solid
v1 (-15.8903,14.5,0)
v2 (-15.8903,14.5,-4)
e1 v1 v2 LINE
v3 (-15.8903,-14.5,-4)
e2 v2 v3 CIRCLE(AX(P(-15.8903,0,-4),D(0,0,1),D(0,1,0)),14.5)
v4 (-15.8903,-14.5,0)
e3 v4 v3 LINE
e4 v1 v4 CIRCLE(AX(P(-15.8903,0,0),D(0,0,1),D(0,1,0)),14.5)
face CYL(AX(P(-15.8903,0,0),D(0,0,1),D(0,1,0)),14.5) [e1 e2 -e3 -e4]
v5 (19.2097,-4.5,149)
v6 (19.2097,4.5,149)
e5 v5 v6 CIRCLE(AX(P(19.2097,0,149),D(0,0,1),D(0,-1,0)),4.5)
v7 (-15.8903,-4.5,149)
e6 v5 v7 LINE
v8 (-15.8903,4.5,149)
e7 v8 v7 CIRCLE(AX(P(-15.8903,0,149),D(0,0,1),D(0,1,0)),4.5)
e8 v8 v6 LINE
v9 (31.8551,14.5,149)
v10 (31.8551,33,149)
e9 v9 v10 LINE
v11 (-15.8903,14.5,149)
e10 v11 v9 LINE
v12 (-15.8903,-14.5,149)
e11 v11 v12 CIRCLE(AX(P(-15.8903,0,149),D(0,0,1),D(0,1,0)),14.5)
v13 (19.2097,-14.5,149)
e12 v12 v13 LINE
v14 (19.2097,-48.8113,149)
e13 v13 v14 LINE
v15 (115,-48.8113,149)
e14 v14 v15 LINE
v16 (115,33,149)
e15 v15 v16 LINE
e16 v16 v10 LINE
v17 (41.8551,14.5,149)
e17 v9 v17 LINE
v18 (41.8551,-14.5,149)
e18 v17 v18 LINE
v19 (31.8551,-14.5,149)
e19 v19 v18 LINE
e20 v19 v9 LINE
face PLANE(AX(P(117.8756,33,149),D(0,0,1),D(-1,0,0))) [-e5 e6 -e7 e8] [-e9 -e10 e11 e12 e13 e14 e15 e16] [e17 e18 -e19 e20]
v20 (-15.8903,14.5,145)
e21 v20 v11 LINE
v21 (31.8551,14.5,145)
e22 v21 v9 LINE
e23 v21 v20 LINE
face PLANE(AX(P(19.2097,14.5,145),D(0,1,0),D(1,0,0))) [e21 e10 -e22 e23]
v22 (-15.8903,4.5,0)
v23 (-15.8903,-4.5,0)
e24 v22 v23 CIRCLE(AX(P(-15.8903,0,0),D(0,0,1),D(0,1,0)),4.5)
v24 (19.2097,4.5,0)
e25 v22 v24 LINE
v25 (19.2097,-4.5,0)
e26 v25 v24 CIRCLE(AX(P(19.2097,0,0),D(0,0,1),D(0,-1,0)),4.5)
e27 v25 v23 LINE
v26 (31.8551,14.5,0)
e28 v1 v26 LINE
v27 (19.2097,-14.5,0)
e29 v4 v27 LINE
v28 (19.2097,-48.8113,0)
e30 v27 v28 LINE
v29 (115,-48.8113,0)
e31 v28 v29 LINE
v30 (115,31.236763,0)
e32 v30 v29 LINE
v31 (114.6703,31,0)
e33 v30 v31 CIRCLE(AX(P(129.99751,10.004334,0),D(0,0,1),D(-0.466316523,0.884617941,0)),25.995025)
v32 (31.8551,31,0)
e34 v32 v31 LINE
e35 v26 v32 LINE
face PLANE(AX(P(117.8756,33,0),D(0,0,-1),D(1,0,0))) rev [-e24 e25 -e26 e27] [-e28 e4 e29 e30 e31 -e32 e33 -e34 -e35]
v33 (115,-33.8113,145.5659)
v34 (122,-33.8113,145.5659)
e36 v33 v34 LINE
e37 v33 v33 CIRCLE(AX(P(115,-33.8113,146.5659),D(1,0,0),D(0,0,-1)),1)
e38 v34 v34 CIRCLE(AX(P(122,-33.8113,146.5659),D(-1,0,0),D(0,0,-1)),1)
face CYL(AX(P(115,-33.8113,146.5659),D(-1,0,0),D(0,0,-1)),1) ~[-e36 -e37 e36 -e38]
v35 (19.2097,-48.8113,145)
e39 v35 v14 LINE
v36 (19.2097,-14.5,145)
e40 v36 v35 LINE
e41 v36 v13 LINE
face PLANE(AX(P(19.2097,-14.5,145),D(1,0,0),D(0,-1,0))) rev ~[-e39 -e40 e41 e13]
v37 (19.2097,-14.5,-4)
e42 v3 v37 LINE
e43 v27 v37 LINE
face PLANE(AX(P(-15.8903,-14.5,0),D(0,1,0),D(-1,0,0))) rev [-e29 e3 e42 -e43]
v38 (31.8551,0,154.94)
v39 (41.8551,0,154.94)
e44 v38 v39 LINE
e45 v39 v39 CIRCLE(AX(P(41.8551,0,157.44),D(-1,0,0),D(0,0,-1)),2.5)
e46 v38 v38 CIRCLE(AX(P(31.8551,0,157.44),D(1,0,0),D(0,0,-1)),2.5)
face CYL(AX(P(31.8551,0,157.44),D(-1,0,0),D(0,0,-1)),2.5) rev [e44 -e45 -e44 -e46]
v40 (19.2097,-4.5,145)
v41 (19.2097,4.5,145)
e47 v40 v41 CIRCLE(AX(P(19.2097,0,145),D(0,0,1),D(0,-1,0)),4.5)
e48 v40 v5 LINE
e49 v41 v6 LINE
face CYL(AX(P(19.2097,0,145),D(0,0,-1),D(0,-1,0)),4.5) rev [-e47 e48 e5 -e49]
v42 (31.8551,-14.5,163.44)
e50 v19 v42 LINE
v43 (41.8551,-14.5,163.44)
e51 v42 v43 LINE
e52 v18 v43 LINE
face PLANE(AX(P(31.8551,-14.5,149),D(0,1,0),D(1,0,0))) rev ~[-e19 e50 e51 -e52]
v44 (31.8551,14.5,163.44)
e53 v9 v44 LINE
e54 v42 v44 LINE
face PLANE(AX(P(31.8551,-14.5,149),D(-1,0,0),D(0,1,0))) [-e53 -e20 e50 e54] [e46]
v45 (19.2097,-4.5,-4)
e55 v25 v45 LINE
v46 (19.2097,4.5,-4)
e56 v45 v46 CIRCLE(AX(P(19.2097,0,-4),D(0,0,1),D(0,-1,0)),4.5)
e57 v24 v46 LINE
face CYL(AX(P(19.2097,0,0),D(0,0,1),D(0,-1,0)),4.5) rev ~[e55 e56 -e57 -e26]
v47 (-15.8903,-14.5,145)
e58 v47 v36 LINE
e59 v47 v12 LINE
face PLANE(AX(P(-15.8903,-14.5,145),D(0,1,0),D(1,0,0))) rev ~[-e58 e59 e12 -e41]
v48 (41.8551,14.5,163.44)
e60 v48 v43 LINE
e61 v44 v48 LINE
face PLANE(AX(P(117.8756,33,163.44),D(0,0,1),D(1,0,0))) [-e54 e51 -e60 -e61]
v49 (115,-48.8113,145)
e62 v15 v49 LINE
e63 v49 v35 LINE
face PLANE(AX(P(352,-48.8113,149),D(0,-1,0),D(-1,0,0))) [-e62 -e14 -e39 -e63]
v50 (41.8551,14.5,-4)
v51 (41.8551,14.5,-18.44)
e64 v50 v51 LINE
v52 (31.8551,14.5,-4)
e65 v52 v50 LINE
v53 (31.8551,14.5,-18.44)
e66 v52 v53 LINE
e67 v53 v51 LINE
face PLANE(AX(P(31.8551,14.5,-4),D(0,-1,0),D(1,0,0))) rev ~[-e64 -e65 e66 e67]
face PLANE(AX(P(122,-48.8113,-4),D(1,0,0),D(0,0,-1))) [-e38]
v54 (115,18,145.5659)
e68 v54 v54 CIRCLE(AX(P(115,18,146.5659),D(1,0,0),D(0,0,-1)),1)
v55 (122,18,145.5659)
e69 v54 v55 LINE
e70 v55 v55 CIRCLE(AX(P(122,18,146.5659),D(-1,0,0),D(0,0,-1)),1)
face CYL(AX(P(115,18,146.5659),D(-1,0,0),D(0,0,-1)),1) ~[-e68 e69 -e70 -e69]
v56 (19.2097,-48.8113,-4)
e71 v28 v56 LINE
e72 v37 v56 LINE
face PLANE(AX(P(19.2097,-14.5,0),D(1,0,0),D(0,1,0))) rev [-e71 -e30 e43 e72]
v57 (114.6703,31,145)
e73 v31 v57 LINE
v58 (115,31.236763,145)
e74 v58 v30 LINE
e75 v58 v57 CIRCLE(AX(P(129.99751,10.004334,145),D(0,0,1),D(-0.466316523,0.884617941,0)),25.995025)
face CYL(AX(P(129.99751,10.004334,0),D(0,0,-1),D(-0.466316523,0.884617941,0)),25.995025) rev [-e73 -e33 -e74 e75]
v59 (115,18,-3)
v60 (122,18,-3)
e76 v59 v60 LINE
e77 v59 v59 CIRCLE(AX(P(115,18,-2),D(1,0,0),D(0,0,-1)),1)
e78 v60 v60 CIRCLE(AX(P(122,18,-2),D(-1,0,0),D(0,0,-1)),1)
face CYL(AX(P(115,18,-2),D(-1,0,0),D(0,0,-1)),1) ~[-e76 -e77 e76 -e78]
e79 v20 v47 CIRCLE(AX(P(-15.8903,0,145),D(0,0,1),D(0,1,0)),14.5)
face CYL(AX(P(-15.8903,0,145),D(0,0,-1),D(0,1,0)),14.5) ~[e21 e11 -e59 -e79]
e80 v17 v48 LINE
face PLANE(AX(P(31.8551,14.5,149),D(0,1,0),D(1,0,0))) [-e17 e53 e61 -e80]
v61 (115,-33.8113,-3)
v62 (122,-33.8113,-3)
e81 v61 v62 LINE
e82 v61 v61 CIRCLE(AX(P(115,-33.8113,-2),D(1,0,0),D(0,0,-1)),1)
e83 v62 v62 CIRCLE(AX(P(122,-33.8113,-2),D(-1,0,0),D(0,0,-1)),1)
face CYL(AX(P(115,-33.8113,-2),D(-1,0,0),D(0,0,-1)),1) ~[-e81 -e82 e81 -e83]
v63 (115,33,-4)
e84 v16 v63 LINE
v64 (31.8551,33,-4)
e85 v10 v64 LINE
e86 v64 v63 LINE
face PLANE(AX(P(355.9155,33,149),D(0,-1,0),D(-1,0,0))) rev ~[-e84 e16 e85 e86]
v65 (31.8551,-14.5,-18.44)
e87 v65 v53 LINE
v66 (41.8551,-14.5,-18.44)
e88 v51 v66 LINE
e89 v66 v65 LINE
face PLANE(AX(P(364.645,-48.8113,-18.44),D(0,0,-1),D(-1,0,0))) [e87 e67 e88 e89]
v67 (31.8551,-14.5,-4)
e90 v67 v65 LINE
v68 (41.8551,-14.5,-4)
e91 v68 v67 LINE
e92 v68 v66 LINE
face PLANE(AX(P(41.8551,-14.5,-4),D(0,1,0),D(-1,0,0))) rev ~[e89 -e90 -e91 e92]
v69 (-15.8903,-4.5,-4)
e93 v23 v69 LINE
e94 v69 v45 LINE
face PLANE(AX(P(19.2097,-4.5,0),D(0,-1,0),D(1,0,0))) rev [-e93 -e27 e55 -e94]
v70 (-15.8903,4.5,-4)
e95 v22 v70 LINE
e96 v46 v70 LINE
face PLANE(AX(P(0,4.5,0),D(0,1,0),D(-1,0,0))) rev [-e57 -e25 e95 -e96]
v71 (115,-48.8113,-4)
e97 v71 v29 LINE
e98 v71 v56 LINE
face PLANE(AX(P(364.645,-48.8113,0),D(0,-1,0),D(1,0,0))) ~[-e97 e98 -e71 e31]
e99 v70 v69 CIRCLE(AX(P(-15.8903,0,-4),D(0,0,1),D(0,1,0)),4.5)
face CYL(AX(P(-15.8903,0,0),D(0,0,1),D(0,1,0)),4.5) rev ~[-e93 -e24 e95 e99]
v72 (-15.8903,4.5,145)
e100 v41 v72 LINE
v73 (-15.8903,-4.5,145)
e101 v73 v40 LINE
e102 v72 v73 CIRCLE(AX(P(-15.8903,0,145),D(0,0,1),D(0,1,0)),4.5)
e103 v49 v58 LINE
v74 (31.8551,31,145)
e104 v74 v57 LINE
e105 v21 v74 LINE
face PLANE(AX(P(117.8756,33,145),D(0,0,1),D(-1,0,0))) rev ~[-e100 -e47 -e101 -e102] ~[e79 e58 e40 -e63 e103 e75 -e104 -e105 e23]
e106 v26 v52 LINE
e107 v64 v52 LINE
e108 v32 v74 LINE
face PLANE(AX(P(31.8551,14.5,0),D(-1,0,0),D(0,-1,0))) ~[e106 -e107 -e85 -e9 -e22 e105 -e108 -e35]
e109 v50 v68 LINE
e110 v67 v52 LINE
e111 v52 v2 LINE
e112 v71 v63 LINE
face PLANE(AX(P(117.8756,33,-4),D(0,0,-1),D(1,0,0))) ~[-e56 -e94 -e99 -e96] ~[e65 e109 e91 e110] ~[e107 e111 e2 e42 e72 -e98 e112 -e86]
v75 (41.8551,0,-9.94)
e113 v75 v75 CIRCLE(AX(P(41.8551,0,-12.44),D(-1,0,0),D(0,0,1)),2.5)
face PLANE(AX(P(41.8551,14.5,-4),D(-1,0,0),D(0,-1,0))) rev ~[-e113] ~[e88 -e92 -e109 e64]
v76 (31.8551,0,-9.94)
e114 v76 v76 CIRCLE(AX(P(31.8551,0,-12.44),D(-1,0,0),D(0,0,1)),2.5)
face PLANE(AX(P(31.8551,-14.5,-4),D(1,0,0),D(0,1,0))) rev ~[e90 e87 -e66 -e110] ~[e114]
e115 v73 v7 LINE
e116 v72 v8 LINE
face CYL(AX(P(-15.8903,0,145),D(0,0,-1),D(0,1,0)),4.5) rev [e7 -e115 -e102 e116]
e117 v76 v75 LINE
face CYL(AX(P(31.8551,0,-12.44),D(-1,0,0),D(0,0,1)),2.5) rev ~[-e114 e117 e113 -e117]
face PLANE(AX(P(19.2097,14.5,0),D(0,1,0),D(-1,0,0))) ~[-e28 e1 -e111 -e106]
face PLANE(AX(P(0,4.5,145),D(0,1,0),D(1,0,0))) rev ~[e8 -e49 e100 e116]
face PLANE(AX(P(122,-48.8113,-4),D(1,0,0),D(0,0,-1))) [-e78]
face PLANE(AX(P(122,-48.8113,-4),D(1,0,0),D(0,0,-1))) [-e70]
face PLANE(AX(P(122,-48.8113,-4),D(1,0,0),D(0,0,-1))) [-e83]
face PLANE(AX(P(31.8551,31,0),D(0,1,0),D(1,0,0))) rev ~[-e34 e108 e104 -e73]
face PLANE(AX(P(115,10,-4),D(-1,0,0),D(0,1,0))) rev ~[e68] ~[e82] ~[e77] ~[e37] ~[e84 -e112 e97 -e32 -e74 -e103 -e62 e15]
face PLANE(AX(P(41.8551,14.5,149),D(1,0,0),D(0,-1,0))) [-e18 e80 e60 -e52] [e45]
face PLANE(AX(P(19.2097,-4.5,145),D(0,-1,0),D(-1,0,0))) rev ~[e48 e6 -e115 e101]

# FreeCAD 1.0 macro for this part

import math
import FreeCAD as App
import Part
import Sketcher
Q = App.Units.Quantity


def add_polygon(sketch, points):
    """Adds a closed chain of lines whose ends are joined by coincident constraints."""
    first, n = sketch.GeometryCount, len(points)
    for a, b in zip(points, points[1:] + points[:1]):
        sketch.addGeometry(Part.LineSegment(App.Vector(*a, 0), App.Vector(*b, 0)), False)
    for i in range(n):
        sketch.addConstraint(Sketcher.Constraint("Coincident", first + i, 2, first + (i + 1) % n, 1))

doc = App.newDocument("Part")
body = doc.addObject("PartDesign::Body", "Body")
body.AllowCompound = True

sketch1 = body.newObject("Sketcher::SketchObject", "Sketch")
sketch1.AttachmentSupport = (doc.getObject("XY_Plane"), [""])
sketch1.MapMode = "FlatFace"
sketch1.addGeometry(Part.ArcOfCircle(Part.Circle(App.Vector(129.99751, 10.004334, 0), App.Vector(0, 0, 1), 25.995025), math.radians(117.795458), math.radians(126.13011)), False)
sketch1.addGeometry(Part.LineSegment(App.Vector(117.8756, 33, 0), App.Vector(31.8551, 33, 0)), False)
sketch1.addGeometry(Part.LineSegment(App.Vector(31.8551, 33, 0), App.Vector(31.8551, 31, 0)), False)
sketch1.addGeometry(Part.LineSegment(App.Vector(31.8551, 31, 0), App.Vector(114.6703, 31, 0)), False)
sketch1.addGeometry(Part.ArcOfCircle(Part.Circle(App.Vector(389.999447, 0.001169, 0), App.Vector(0, 0, 1), 35.99871), math.radians(113.556409), math.radians(120.558613)), False)
sketch1.addGeometry(Part.LineSegment(App.Vector(375.6125, 33, 0), App.Vector(272.1244, 33, 0)), False)
sketch1.addGeometry(Part.ArcOfCircle(Part.Circle(App.Vector(259.9972, 9.995857, 0), App.Vector(0, 0, 1), 26.004991), math.radians(53.87149), math.radians(62.202942)), False)
sketch1.addGeometry(Part.LineSegment(App.Vector(275.3297, 31, 0), App.Vector(371.697, 31, 0)), False)
sketch1.addGeometry(Part.ArcOfCircle(Part.Circle(App.Vector(259.99751, 10.004334, 0), App.Vector(0, 0, 1), 25.995025), math.radians(117.795458), math.radians(126.13011)), False)
sketch1.addGeometry(Part.LineSegment(App.Vector(247.8756, 33, 0), App.Vector(142.1244, 33, 0)), False)
sketch1.addGeometry(Part.ArcOfCircle(Part.Circle(App.Vector(129.9972, 9.995857, 0), App.Vector(0, 0, 1), 26.004991), math.radians(53.87149), math.radians(62.202942)), False)
sketch1.addGeometry(Part.LineSegment(App.Vector(145.3297, 31, 0), App.Vector(244.6703, 31, 0)), False)
sketch1.addConstraint(Sketcher.Constraint("Coincident", 0, 1, 1, 1))
sketch1.addConstraint(Sketcher.Constraint("Coincident", 1, 2, 2, 1))
sketch1.addConstraint(Sketcher.Constraint("Coincident", 2, 2, 3, 1))
sketch1.addConstraint(Sketcher.Constraint("Coincident", 3, 2, 0, 2))
sketch1.addConstraint(Sketcher.Constraint("Coincident", 4, 1, 5, 1))
sketch1.addConstraint(Sketcher.Constraint("Coincident", 5, 2, 6, 2))
sketch1.addConstraint(Sketcher.Constraint("Coincident", 6, 1, 7, 1))
sketch1.addConstraint(Sketcher.Constraint("Coincident", 7, 2, 4, 2))
sketch1.addConstraint(Sketcher.Constraint("Coincident", 8, 1, 9, 1))
sketch1.addConstraint(Sketcher.Constraint("Coincident", 9, 2, 10, 2))
sketch1.addConstraint(Sketcher.Constraint("Coincident", 10, 1, 11, 1))
sketch1.addConstraint(Sketcher.Constraint("Coincident", 11, 2, 8, 2))
sketch1.addConstraint(Sketcher.Constraint("Horizontal", 1))
sketch1.addConstraint(Sketcher.Constraint("Vertical", 2))
sketch1.addConstraint(Sketcher.Constraint("Horizontal", 3))
sketch1.addConstraint(Sketcher.Constraint("Horizontal", 5))
sketch1.addConstraint(Sketcher.Constraint("Horizontal", 7))
sketch1.addConstraint(Sketcher.Constraint("Horizontal", 9))
sketch1.addConstraint(Sketcher.Constraint("Horizontal", 11))
sketch1.addConstraint(Sketcher.Constraint("Equal", 0, 8))
sketch1.addConstraint(Sketcher.Constraint("Equal", 6, 10))
sketch1.addConstraint(Sketcher.Constraint("Horizontal", 0, 3, 8, 3))
sketch1.addConstraint(Sketcher.Constraint("Horizontal", 6, 3, 10, 3))
sketch1.addConstraint(Sketcher.Constraint("Horizontal", 1, 2, 4, 1))
sketch1.addConstraint(Sketcher.Constraint("Horizontal", 3, 2, 6, 1))
sketch1.addConstraint(Sketcher.Constraint("Horizontal", 5, 2, 8, 1))
sketch1.addConstraint(Sketcher.Constraint("Horizontal", 7, 2, 10, 1))
sketch1.addConstraint(Sketcher.Constraint("DistanceY", 2, 2, 2, 1, Q("2 mm")))
sketch1.addConstraint(Sketcher.Constraint("DistanceX", 0, 3, 8, 3, Q("130 mm")))
sketch1.addConstraint(Sketcher.Constraint("DistanceX", 10, 3, 6, 3, Q("130 mm")))
sketch1.addConstraint(Sketcher.Constraint("DistanceY", -1, 1, 0, 1, Q("33 mm")))
sketch1.addConstraint(Sketcher.Constraint("Radius", 0, Q("25.995 mm")))
sketch1.addConstraint(Sketcher.Constraint("Radius", 6, Q("26.005 mm")))
sketch1.addConstraint(Sketcher.Constraint("DistanceX", -1, 1, 4, 3, Q("389.9994 mm")))
sketch1.addConstraint(Sketcher.Constraint("Radius", 4, Q("35.9987 mm")))
sketch1.addConstraint(Sketcher.Constraint("DistanceX", 0, 3, 6, 3, Q("129.9997 mm")))
sketch1.addConstraint(Sketcher.Constraint("DistanceX", 5, 2, 5, 1, Q("103.488 mm")))
sketch1.addConstraint(Sketcher.Constraint("DistanceX", 1, 2, 1, 1, Q("86.0205 mm")))
sketch1.addConstraint(Sketcher.Constraint("DistanceX", 3, 1, 3, 2, Q("82.8152 mm")))
sketch1.addConstraint(Sketcher.Constraint("DistanceX", 7, 1, 7, 2, Q("96.3673 mm")))
sketch1.addConstraint(Sketcher.Constraint("DistanceX", 9, 2, 9, 1, Q("105.7512 mm")))
pad1 = body.newObject("PartDesign::Pad", "Pad")
pad1.Profile = sketch1
pad1.Length = 145

sketch2 = body.newObject("Sketcher::SketchObject", "Sketch001")
sketch2.AttachmentSupport = (doc.getObject("XY_Plane"), [""])
sketch2.MapMode = "FlatFace"
sketch2.AttachmentOffset = App.Placement(App.Vector(0, 0, 145), App.Rotation())
sketch2.addGeometry(Part.LineSegment(App.Vector(31.8551, 14.5, 0), App.Vector(-15.8903, 14.5, 0)), False)
sketch2.addGeometry(Part.ArcOfCircle(Part.Circle(App.Vector(-15.8903, 0, 0), App.Vector(0, 0, 1), 14.5), math.radians(90), math.radians(270)), False)
sketch2.addGeometry(Part.LineSegment(App.Vector(-15.8903, -14.5, 0), App.Vector(19.2097, -14.5, 0)), False)
sketch2.addGeometry(Part.LineSegment(App.Vector(19.2097, -14.5, 0), App.Vector(19.2097, -48.8113, 0)), False)
sketch2.addGeometry(Part.LineSegment(App.Vector(19.2097, -48.8113, 0), App.Vector(364.645, -48.8113, 0)), False)
sketch2.addGeometry(Part.LineSegment(App.Vector(364.645, -48.8113, 0), App.Vector(364.645, -14.5, 0)), False)
sketch2.addGeometry(Part.LineSegment(App.Vector(364.645, -14.5, 0), App.Vector(399.745, -14.5, 0)), False)
sketch2.addGeometry(Part.ArcOfCircle(Part.Circle(App.Vector(399.745, 0, 0), App.Vector(0, 0, 1), 14.5), math.radians(-90), math.radians(90)), False)
sketch2.addGeometry(Part.LineSegment(App.Vector(399.745, 14.5, 0), App.Vector(352, 14.5, 0)), False)
sketch2.addGeometry(Part.LineSegment(App.Vector(352, 14.5, 0), App.Vector(352, 31, 0)), False)
sketch2.addGeometry(Part.LineSegment(App.Vector(352, 31, 0), App.Vector(355.9155, 33, 0)), False)
sketch2.addGeometry(Part.LineSegment(App.Vector(355.9155, 33, 0), App.Vector(31.8551, 33, 0)), False)
sketch2.addGeometry(Part.LineSegment(App.Vector(31.8551, 33, 0), App.Vector(31.8551, 14.5, 0)), False)
sketch2.addGeometry(Part.LineSegment(App.Vector(19.2097, -4.5, 0), App.Vector(-15.8903, -4.5, 0)), False)
sketch2.addGeometry(Part.ArcOfCircle(Part.Circle(App.Vector(-15.8903, 0, 0), App.Vector(0, 0, 1), 4.5), math.radians(90), math.radians(270)), False)
sketch2.addGeometry(Part.LineSegment(App.Vector(-15.8903, 4.5, 0), App.Vector(19.2097, 4.5, 0)), False)
sketch2.addGeometry(Part.ArcOfCircle(Part.Circle(App.Vector(19.2097, 0, 0), App.Vector(0, 0, 1), 4.5), math.radians(-90), math.radians(90)), False)
sketch2.addConstraint(Sketcher.Constraint("Tangent", 0, 2, 1, 1))
sketch2.addConstraint(Sketcher.Constraint("Tangent", 1, 2, 2, 1))
sketch2.addConstraint(Sketcher.Constraint("Coincident", 2, 2, 3, 1))
sketch2.addConstraint(Sketcher.Constraint("Coincident", 3, 2, 4, 1))
sketch2.addConstraint(Sketcher.Constraint("Coincident", 4, 2, 5, 1))
sketch2.addConstraint(Sketcher.Constraint("Coincident", 5, 2, 6, 1))
sketch2.addConstraint(Sketcher.Constraint("Tangent", 6, 2, 7, 1))
sketch2.addConstraint(Sketcher.Constraint("Tangent", 7, 2, 8, 1))
sketch2.addConstraint(Sketcher.Constraint("Coincident", 8, 2, 9, 1))
sketch2.addConstraint(Sketcher.Constraint("Coincident", 9, 2, 10, 1))
sketch2.addConstraint(Sketcher.Constraint("Coincident", 10, 2, 11, 1))
sketch2.addConstraint(Sketcher.Constraint("Coincident", 11, 2, 12, 1))
sketch2.addConstraint(Sketcher.Constraint("Coincident", 12, 2, 0, 1))
sketch2.addConstraint(Sketcher.Constraint("Tangent", 13, 2, 14, 2))
sketch2.addConstraint(Sketcher.Constraint("Tangent", 14, 1, 15, 1))
sketch2.addConstraint(Sketcher.Constraint("Tangent", 15, 2, 16, 2))
sketch2.addConstraint(Sketcher.Constraint("Tangent", 16, 1, 13, 1))
sketch2.addConstraint(Sketcher.Constraint("Horizontal", 0))
sketch2.addConstraint(Sketcher.Constraint("Horizontal", 2))
sketch2.addConstraint(Sketcher.Constraint("Vertical", 3))
sketch2.addConstraint(Sketcher.Constraint("Horizontal", 4))
sketch2.addConstraint(Sketcher.Constraint("Vertical", 5))
sketch2.addConstraint(Sketcher.Constraint("Horizontal", 6))
sketch2.addConstraint(Sketcher.Constraint("Horizontal", 8))
sketch2.addConstraint(Sketcher.Constraint("Vertical", 9))
sketch2.addConstraint(Sketcher.Constraint("Horizontal", 11))
sketch2.addConstraint(Sketcher.Constraint("Vertical", 12))
sketch2.addConstraint(Sketcher.Constraint("Horizontal", 13))
sketch2.addConstraint(Sketcher.Constraint("Horizontal", 15))
sketch2.addConstraint(Sketcher.Constraint("Coincident", 14, 3, 1, 3))
sketch2.addConstraint(Sketcher.Constraint("Equal", 1, 7))
sketch2.addConstraint(Sketcher.Constraint("PointOnObject", 1, 3, -1))
sketch2.addConstraint(Sketcher.Constraint("PointOnObject", 7, 3, -1))
sketch2.addConstraint(Sketcher.Constraint("Vertical", 16, 3, 2, 2))
sketch2.addConstraint(Sketcher.Constraint("Equal", 2, 6))
sketch2.addConstraint(Sketcher.Constraint("Radius", 14, Q("4.5 mm")))
sketch2.addConstraint(Sketcher.Constraint("DistanceY", 9, 1, 9, 2, Q("16.5 mm")))
sketch2.addConstraint(Sketcher.Constraint("DistanceY", 1, 2, 13, 2, Q("10 mm")))
sketch2.addConstraint(Sketcher.Constraint("DistanceX", 8, 2, 8, 1, Q("47.745 mm")))
sketch2.addConstraint(Sketcher.Constraint("DistanceX", 0, 2, 0, 1, Q("47.7454 mm")))
sketch2.addConstraint(Sketcher.Constraint("DistanceX", 2, 1, 2, 2, Q("35.1 mm")))
sketch2.addConstraint(Sketcher.Constraint("DistanceY", 12, 2, 12, 1, Q("18.5 mm")))
sketch2.addConstraint(Sketcher.Constraint("DistanceX", -1, 1, 8, 2, Q("352 mm")))
sketch2.addConstraint(Sketcher.Constraint("DistanceX", 4, 1, 4, 2, Q("345.4353 mm")))
sketch2.addConstraint(Sketcher.Constraint("DistanceX", 11, 2, 11, 1, Q("324.0604 mm")))
sketch2.addConstraint(Sketcher.Constraint("DistanceY", 3, 2, 3, 1, Q("34.3113 mm")))
pad2 = body.newObject("PartDesign::Pad", "Pad001")
pad2.Profile = sketch2
pad2.Length = 4
doc.recompute()

datumplane = body.newObject("PartDesign::Plane", "DatumPlane")
datumplane.AttachmentSupport = (doc.getObject("XY_Plane"), [""])
datumplane.MapMode = "FlatFace"
datumplane.AttachmentOffset = App.Placement(App.Vector(0, 0, 72.5), App.Rotation())
mirrored = body.newObject("PartDesign::Mirrored", "Mirrored")
mirrored.Originals = [pad2]
mirrored.MirrorPlane = (datumplane, [""])
body.Tip = mirrored

sketch3 = body.newObject("Sketcher::SketchObject", "Sketch002")
sketch3.AttachmentSupport = (doc.getObject("XY_Plane"), [""])
sketch3.MapMode = "FlatFace"
sketch3.addGeometry(Part.Circle(App.Vector(130, 10, 0), App.Vector(0, 0, 1), 4.5), False)
sketch3.addGeometry(Part.Circle(App.Vector(260, 10, 0), App.Vector(0, 0, 1), 4.5), False)
sketch3.addConstraint(Sketcher.Constraint("Equal", 0, 1))
sketch3.addConstraint(Sketcher.Constraint("Horizontal", 0, 3, 1, 3))
sketch3.addConstraint(Sketcher.Constraint("Diameter", 0, Q("9 mm")))
sketch3.addConstraint(Sketcher.Constraint("DistanceX", -1, 1, 0, 3, Q("130 mm")))
sketch3.addConstraint(Sketcher.Constraint("DistanceX", -1, 1, 1, 3, Q("260 mm")))
sketch3.addConstraint(Sketcher.Constraint("DistanceY", -1, 1, 0, 3, Q("10 mm")))
pocket1 = body.newObject("PartDesign::Pocket", "Pocket")
pocket1.Profile = sketch3
pocket1.Length = 10000
pocket1.Midplane = True

sketch4 = body.newObject("Sketcher::SketchObject", "Sketch003")
sketch4.AttachmentSupport = (doc.getObject("XY_Plane"), [""])
sketch4.MapMode = "FlatFace"
sketch4.AttachmentOffset = App.Placement(App.Vector(0, 0, 145), App.Rotation())
sketch4.addGeometry(Part.LineSegment(App.Vector(355.9155, 33, 0), App.Vector(352, 31, 0)), False)
sketch4.addGeometry(Part.LineSegment(App.Vector(352, 31, 0), App.Vector(371.697, 31, 0)), False)
sketch4.addGeometry(Part.ArcOfCircle(Part.Circle(App.Vector(389.999447, 0.001169, 0), App.Vector(0, 0, 1), 35.99871), math.radians(113.556409), math.radians(120.558613)), False)
sketch4.addGeometry(Part.LineSegment(App.Vector(375.6125, 33, 0), App.Vector(355.9155, 33, 0)), False)
sketch4.addConstraint(Sketcher.Constraint("Coincident", 0, 2, 1, 1))
sketch4.addConstraint(Sketcher.Constraint("Coincident", 1, 2, 2, 2))
sketch4.addConstraint(Sketcher.Constraint("Coincident", 2, 1, 3, 1))
sketch4.addConstraint(Sketcher.Constraint("Coincident", 3, 2, 0, 1))
sketch4.addConstraint(Sketcher.Constraint("Horizontal", 1))
sketch4.addConstraint(Sketcher.Constraint("Horizontal", 3))
sketch4.addConstraint(Sketcher.Constraint("Equal", 1, 3))
sketch4.addConstraint(Sketcher.Constraint("DistanceX", -1, 1, 0, 2, Q("352 mm")))
sketch4.addConstraint(Sketcher.Constraint("DistanceY", -1, 1, 0, 2, Q("31 mm")))
sketch4.addConstraint(Sketcher.Constraint("DistanceY", -1, 1, 2, 1, Q("33 mm")))
sketch4.addConstraint(Sketcher.Constraint("Radius", 2, Q("35.9987 mm")))
sketch4.addConstraint(Sketcher.Constraint("DistanceX", 1, 1, 1, 2, Q("19.697 mm")))
sketch4.addConstraint(Sketcher.Constraint("DistanceX", 2, 1, 2, 3, Q("14.387 mm")))
pocket2 = body.newObject("PartDesign::Pocket", "Pocket001")
pocket2.Profile = sketch4
pocket2.Length = 1000
pocket2.Midplane = True

sketch5 = body.newObject("Sketcher::SketchObject", "Sketch004")
sketch5.AttachmentSupport = (doc.getObject("XY_Plane"), [""])
sketch5.MapMode = "FlatFace"
sketch5.AttachmentOffset = App.Placement(App.Vector(0, 0, 149), App.Rotation())
sketch5.addGeometry(Part.ArcOfCircle(Part.Circle(App.Vector(399.745, 0, 0), App.Vector(0, 0, 1), 14.5), math.radians(-90), math.radians(90)), False)
sketch5.addGeometry(Part.LineSegment(App.Vector(399.745, 14.5, 0), App.Vector(352, 14.5, 0)), False)
sketch5.addGeometry(Part.LineSegment(App.Vector(352, 14.5, 0), App.Vector(352, -48.8113, 0)), False)
sketch5.addGeometry(Part.LineSegment(App.Vector(352, -48.8113, 0), App.Vector(364.645, -48.8113, 0)), False)
sketch5.addGeometry(Part.LineSegment(App.Vector(364.645, -48.8113, 0), App.Vector(364.645, -14.5, 0)), False)
sketch5.addGeometry(Part.LineSegment(App.Vector(364.645, -14.5, 0), App.Vector(399.745, -14.5, 0)), False)
sketch5.addConstraint(Sketcher.Constraint("Tangent", 0, 2, 1, 1))
sketch5.addConstraint(Sketcher.Constraint("Coincident", 1, 2, 2, 1))
sketch5.addConstraint(Sketcher.Constraint("Coincident", 2, 2, 3, 1))
sketch5.addConstraint(Sketcher.Constraint("Coincident", 3, 2, 4, 1))
sketch5.addConstraint(Sketcher.Constraint("Coincident", 4, 2, 5, 1))
sketch5.addConstraint(Sketcher.Constraint("Tangent", 5, 2, 0, 1))
sketch5.addConstraint(Sketcher.Constraint("Horizontal", 1))
sketch5.addConstraint(Sketcher.Constraint("Vertical", 2))
sketch5.addConstraint(Sketcher.Constraint("Horizontal", 3))
sketch5.addConstraint(Sketcher.Constraint("Vertical", 4))
sketch5.addConstraint(Sketcher.Constraint("Horizontal", 5))
sketch5.addConstraint(Sketcher.Constraint("PointOnObject", 0, 3, -1))
sketch5.addConstraint(Sketcher.Constraint("Radius", 0, Q("14.5 mm")))
sketch5.addConstraint(Sketcher.Constraint("DistanceX", 5, 1, 5, 2, Q("35.1 mm")))
sketch5.addConstraint(Sketcher.Constraint("DistanceX", -1, 1, 1, 2, Q("352 mm")))
sketch5.addConstraint(Sketcher.Constraint("DistanceX", 1, 2, 1, 1, Q("47.745 mm")))
sketch5.addConstraint(Sketcher.Constraint("DistanceY", 2, 2, 2, 1, Q("63.3113 mm")))
pocket3 = body.newObject("PartDesign::Pocket", "Pocket002")
pocket3.Profile = sketch5
pocket3.Length = 17

sketch6 = body.newObject("Sketcher::SketchObject", "Sketch005")
sketch6.AttachmentSupport = (doc.getObject("XY_Plane"), [""])
sketch6.MapMode = "FlatFace"
sketch6.addGeometry(Part.Circle(App.Vector(390, 0, 0), App.Vector(0, 0, 1), 4.5), False)
sketch6.addConstraint(Sketcher.Constraint("PointOnObject", 0, 3, -1))
sketch6.addConstraint(Sketcher.Constraint("Diameter", 0, Q("9 mm")))
sketch6.addConstraint(Sketcher.Constraint("DistanceX", -1, 1, 0, 3, Q("390 mm")))
pocket4 = body.newObject("PartDesign::Pocket", "Pocket003")
pocket4.Profile = sketch6
pocket4.Length = 17

sketch7 = body.newObject("Sketcher::SketchObject", "Sketch006")
sketch7.AttachmentSupport = (doc.getObject("XY_Plane"), [""])
sketch7.MapMode = "FlatFace"
sketch7.AttachmentOffset = App.Placement(App.Vector(0, 0, 149), App.Rotation())
add_polygon(sketch7, [(350, -48.8113), (352, -48.8113), (352, 31), (355.9155, 33), (353.9155, 33), (350, 31)])
sketch7.addConstraint(Sketcher.Constraint("Horizontal", 0))
sketch7.addConstraint(Sketcher.Constraint("Vertical", 1))
sketch7.addConstraint(Sketcher.Constraint("Horizontal", 3))
sketch7.addConstraint(Sketcher.Constraint("Vertical", 5))
sketch7.addConstraint(Sketcher.Constraint("Parallel", 2, 4))
sketch7.addConstraint(Sketcher.Constraint("Horizontal", 1, 2, 4, 2))
sketch7.addConstraint(Sketcher.Constraint("DistanceX", 0, 1, 0, 2, Q("2 mm")))
sketch7.addConstraint(Sketcher.Constraint("DistanceY", 1, 2, 2, 2, Q("2 mm")))
sketch7.addConstraint(Sketcher.Constraint("DistanceX", -1, 1, 0, 2, Q("352 mm")))
sketch7.addConstraint(Sketcher.Constraint("DistanceY", -1, 1, 1, 2, Q("31 mm")))
sketch7.addConstraint(Sketcher.Constraint("DistanceY", 1, 1, 1, 2, Q("79.8113 mm")))
sketch7.addConstraint(Sketcher.Constraint("Distance", 2, Q("4.3967 mm")))
pad3 = body.newObject("PartDesign::Pad", "Pad002")
pad3.Profile = sketch7
pad3.Length = 17

sketch8 = body.newObject("Sketcher::SketchObject", "Sketch007")
sketch8.AttachmentSupport = (doc.getObject("XY_Plane"), [""])
sketch8.MapMode = "FlatFace"
sketch8.AttachmentOffset = App.Placement(App.Vector(0, 0, 166), App.Rotation())
sketch8.addGeometry(Part.LineSegment(App.Vector(350, 31, 0), App.Vector(350, -48.8113, 0)), False)
sketch8.addGeometry(Part.LineSegment(App.Vector(350, -48.8113, 0), App.Vector(364.645, -48.8113, 0)), False)
sketch8.addGeometry(Part.LineSegment(App.Vector(364.645, -48.8113, 0), App.Vector(364.645, -14.5, 0)), False)
sketch8.addGeometry(Part.LineSegment(App.Vector(364.645, -14.5, 0), App.Vector(399.745, -14.5, 0)), False)
sketch8.addGeometry(Part.ArcOfCircle(Part.Circle(App.Vector(399.745, 0, 0), App.Vector(0, 0, 1), 14.5), math.radians(-90), math.radians(90)), False)
sketch8.addGeometry(Part.LineSegment(App.Vector(399.745, 14.5, 0), App.Vector(352, 14.5, 0)), False)
sketch8.addGeometry(Part.LineSegment(App.Vector(352, 14.5, 0), App.Vector(352, 31, 0)), False)
sketch8.addGeometry(Part.LineSegment(App.Vector(352, 31, 0), App.Vector(355.9155, 33, 0)), False)
sketch8.addGeometry(Part.LineSegment(App.Vector(355.9155, 33, 0), App.Vector(353.9155, 33, 0)), False)
sketch8.addGeometry(Part.LineSegment(App.Vector(353.9155, 33, 0), App.Vector(350, 31, 0)), False)
sketch8.addGeometry(Part.Circle(App.Vector(390, 0, 0), App.Vector(0, 0, 1), 4.5), False)
sketch8.addConstraint(Sketcher.Constraint("Coincident", 0, 2, 1, 1))
sketch8.addConstraint(Sketcher.Constraint("Coincident", 1, 2, 2, 1))
sketch8.addConstraint(Sketcher.Constraint("Coincident", 2, 2, 3, 1))
sketch8.addConstraint(Sketcher.Constraint("Tangent", 3, 2, 4, 1))
sketch8.addConstraint(Sketcher.Constraint("Tangent", 4, 2, 5, 1))
sketch8.addConstraint(Sketcher.Constraint("Coincident", 5, 2, 6, 1))
sketch8.addConstraint(Sketcher.Constraint("Coincident", 6, 2, 7, 1))
sketch8.addConstraint(Sketcher.Constraint("Coincident", 7, 2, 8, 1))
sketch8.addConstraint(Sketcher.Constraint("Coincident", 8, 2, 9, 1))
sketch8.addConstraint(Sketcher.Constraint("Coincident", 9, 2, 0, 1))
sketch8.addConstraint(Sketcher.Constraint("Vertical", 0))
sketch8.addConstraint(Sketcher.Constraint("Horizontal", 1))
sketch8.addConstraint(Sketcher.Constraint("Vertical", 2))
sketch8.addConstraint(Sketcher.Constraint("Horizontal", 3))
sketch8.addConstraint(Sketcher.Constraint("Horizontal", 5))
sketch8.addConstraint(Sketcher.Constraint("Vertical", 6))
sketch8.addConstraint(Sketcher.Constraint("Horizontal", 8))
sketch8.addConstraint(Sketcher.Constraint("PointOnObject", 4, 3, -1))
sketch8.addConstraint(Sketcher.Constraint("PointOnObject", 10, 3, -1))
sketch8.addConstraint(Sketcher.Constraint("Parallel", 7, 9))
sketch8.addConstraint(Sketcher.Constraint("Horizontal", 6, 2, 9, 2))
sketch8.addConstraint(Sketcher.Constraint("Diameter", 10, Q("9 mm")))
sketch8.addConstraint(Sketcher.Constraint("Radius", 4, Q("14.5 mm")))
sketch8.addConstraint(Sketcher.Constraint("DistanceX", 8, 2, 8, 1, Q("2 mm")))
sketch8.addConstraint(Sketcher.Constraint("DistanceX", 3, 1, 3, 2, Q("35.1 mm")))
sketch8.addConstraint(Sketcher.Constraint("DistanceY", 6, 1, 6, 2, Q("16.5 mm")))
sketch8.addConstraint(Sketcher.Constraint("DistanceX", -1, 1, 10, 3, Q("390 mm")))
sketch8.addConstraint(Sketcher.Constraint("DistanceX", -1, 1, 0, 2, Q("350 mm")))
sketch8.addConstraint(Sketcher.Constraint("DistanceY", -1, 1, 7, 2, Q("33 mm")))
sketch8.addConstraint(Sketcher.Constraint("DistanceX", 1, 1, 1, 2, Q("14.645 mm")))
sketch8.addConstraint(Sketcher.Constraint("DistanceY", 0, 2, 0, 1, Q("79.8113 mm")))
sketch8.addConstraint(Sketcher.Constraint("Distance", 7, Q("4.3967 mm")))
pad4 = body.newObject("PartDesign::Pad", "Pad003")
pad4.Profile = sketch8
pad4.Length = 4

sketch9 = body.newObject("Sketcher::SketchObject", "Sketch008")
sketch9.AttachmentSupport = (doc.getObject("XY_Plane"), [""])
sketch9.MapMode = "FlatFace"
sketch9.AttachmentOffset = App.Placement(App.Vector(0, 0, -4), App.Rotation())
add_polygon(sketch9, [(31.8551, -14.5), (31.8551, 14.5), (41.8551, 14.5), (41.8551, -14.5)])
sketch9.addConstraint(Sketcher.Constraint("Vertical", 0))
sketch9.addConstraint(Sketcher.Constraint("Horizontal", 1))
sketch9.addConstraint(Sketcher.Constraint("Vertical", 2))
sketch9.addConstraint(Sketcher.Constraint("Horizontal", 3))
sketch9.addConstraint(Sketcher.Constraint("DistanceX", 1, 1, 1, 2, Q("10 mm")))
sketch9.addConstraint(Sketcher.Constraint("DistanceY", 0, 1, 0, 2, Q("29 mm")))
sketch9.addConstraint(Sketcher.Constraint("DistanceY", -1, 1, 0, 2, Q("14.5 mm")))
sketch9.addConstraint(Sketcher.Constraint("DistanceX", -1, 1, 0, 2, Q("31.855 mm")))
pad5 = body.newObject("PartDesign::Pad", "Pad004")
pad5.Profile = sketch9
pad5.Length = 14.44
pad5.Reversed = True

sketch10 = body.newObject("Sketcher::SketchObject", "Sketch009")
sketch10.AttachmentSupport = (doc.getObject("XY_Plane"), [""])
sketch10.MapMode = "FlatFace"
sketch10.AttachmentOffset = App.Placement(App.Vector(0, 0, 149), App.Rotation())
add_polygon(sketch10, [(31.8551, 14.5), (31.8551, -14.5), (41.8551, -14.5), (41.8551, 14.5)])
sketch10.addConstraint(Sketcher.Constraint("Vertical", 0))
sketch10.addConstraint(Sketcher.Constraint("Horizontal", 1))
sketch10.addConstraint(Sketcher.Constraint("Vertical", 2))
sketch10.addConstraint(Sketcher.Constraint("Horizontal", 3))
sketch10.addConstraint(Sketcher.Constraint("DistanceX", 1, 1, 1, 2, Q("10 mm")))
sketch10.addConstraint(Sketcher.Constraint("DistanceY", 0, 2, 0, 1, Q("29 mm")))
sketch10.addConstraint(Sketcher.Constraint("DistanceY", 0, 2, -1, 1, Q("14.5 mm")))
sketch10.addConstraint(Sketcher.Constraint("DistanceX", -1, 1, 0, 2, Q("31.855 mm")))
pad6 = body.newObject("PartDesign::Pad", "Pad005")
pad6.Profile = sketch10
pad6.Length = 14.44

sketch11 = body.newObject("Sketcher::SketchObject", "Sketch010")
sketch11.AttachmentSupport = (doc.getObject("YZ_Plane"), [""])
sketch11.MapMode = "FlatFace"
sketch11.AttachmentOffset = App.Placement(App.Vector(0, 0, 31.8551), App.Rotation())
sketch11.addGeometry(Part.Circle(App.Vector(0, -12.44, 0), App.Vector(0, 0, 1), 2.5), False)
sketch11.addConstraint(Sketcher.Constraint("PointOnObject", 0, 3, -2))
sketch11.addConstraint(Sketcher.Constraint("Diameter", 0, Q("5 mm")))
sketch11.addConstraint(Sketcher.Constraint("DistanceY", 0, 3, -1, 1, Q("12.44 mm")))
pocket5 = body.newObject("PartDesign::Pocket", "Pocket004")
pocket5.Profile = sketch11
pocket5.Type = "ThroughAll"
pocket5.Reversed = True
doc.recompute()

datumplane2 = body.newObject("PartDesign::Plane", "DatumPlane001")
datumplane2.AttachmentSupport = (doc.getObject("XY_Plane"), [""])
datumplane2.MapMode = "FlatFace"
datumplane2.AttachmentOffset = App.Placement(App.Vector(0, 0, 72.5), App.Rotation())
mirrored2 = body.newObject("PartDesign::Mirrored", "Mirrored001")
mirrored2.Originals = [pocket5]
mirrored2.MirrorPlane = (datumplane2, [""])
body.Tip = mirrored2

sketch12 = body.newObject("Sketcher::SketchObject", "Sketch011")
sketch12.AttachmentSupport = (doc.getObject("XY_Plane"), [""])
sketch12.MapMode = "FlatFace"
sketch12.AttachmentOffset = App.Placement(App.Vector(0, 0, -4), App.Rotation())
add_polygon(sketch12, [(115, -63.2617), (115, 10), (115, 44.7563), (448.9693, 44.7563), (448.9693, -63.2617)])
sketch12.addGeometry(Part.Circle(App.Vector(130, 10, 0), App.Vector(0, 0, 1), 4.5), False)
sketch12.addConstraint(Sketcher.Constraint("Vertical", 0))
sketch12.addConstraint(Sketcher.Constraint("Vertical", 1))
sketch12.addConstraint(Sketcher.Constraint("Horizontal", 2))
sketch12.addConstraint(Sketcher.Constraint("Vertical", 3))
sketch12.addConstraint(Sketcher.Constraint("Horizontal", 4))
sketch12.addConstraint(Sketcher.Constraint("Horizontal", 5, 3, 0, 2))
sketch12.addConstraint(Sketcher.Constraint("Diameter", 5, Q("9 mm")))
sketch12.addConstraint(Sketcher.Constraint("DistanceX", 0, 2, 5, 3, Q("15 mm")))
sketch12.addConstraint(Sketcher.Constraint("DistanceX", -1, 1, 5, 3, Q("130 mm")))
sketch12.addConstraint(Sketcher.Constraint("DistanceY", -1, 1, 5, 3, Q("10 mm")))
sketch12.addConstraint(Sketcher.Constraint("DistanceY", 3, 2, 3, 1, Q("108.018 mm")))
sketch12.addConstraint(Sketcher.Constraint("DistanceX", 2, 1, 2, 2, Q("333.9693 mm")))
sketch12.addConstraint(Sketcher.Constraint("DistanceY", 0, 1, 0, 2, Q("73.2617 mm")))
pocket6 = body.newObject("PartDesign::Pocket", "Pocket005")
pocket6.Profile = sketch12
pocket6.Length = 682
pocket6.Reversed = True

sketch13 = body.newObject("Sketcher::SketchObject", "Sketch012")
sketch13.AttachmentSupport = (doc.getObject("YZ_Plane"), [""])
sketch13.MapMode = "FlatFace"
sketch13.AttachmentOffset = App.Placement(App.Vector(0, 0, 115), App.Rotation())
sketch13.addGeometry(Part.Circle(App.Vector(18, -2, 0), App.Vector(0, 0, 1), 1), False)
sketch13.addGeometry(Part.Circle(App.Vector(18, 146.5659, 0), App.Vector(0, 0, 1), 1), False)
sketch13.addGeometry(Part.Circle(App.Vector(-33.8113, 146.5659, 0), App.Vector(0, 0, 1), 1), False)
sketch13.addGeometry(Part.Circle(App.Vector(-33.8113, -2, 0), App.Vector(0, 0, 1), 1), False)
sketch13.addConstraint(Sketcher.Constraint("Equal", 0, 1))
sketch13.addConstraint(Sketcher.Constraint("Equal", 1, 2))
sketch13.addConstraint(Sketcher.Constraint("Equal", 2, 3))
sketch13.addConstraint(Sketcher.Constraint("Horizontal", 1, 3, 2, 3))
sketch13.addConstraint(Sketcher.Constraint("Horizontal", 0, 3, 3, 3))
sketch13.addConstraint(Sketcher.Constraint("Vertical", 0, 3, 1, 3))
sketch13.addConstraint(Sketcher.Constraint("Vertical", 2, 3, 3, 3))
sketch13.addConstraint(Sketcher.Constraint("Diameter", 0, Q("2 mm")))
sketch13.addConstraint(Sketcher.Constraint("DistanceY", 0, 3, -1, 1, Q("2 mm")))
sketch13.addConstraint(Sketcher.Constraint("DistanceX", -1, 1, 0, 3, Q("18 mm")))
sketch13.addConstraint(Sketcher.Constraint("DistanceY", -1, 1, 1, 3, Q("146.566 mm")))
sketch13.addConstraint(Sketcher.Constraint("DistanceX", 2, 3, -1, 1, Q("33.8113 mm")))
pad7 = body.newObject("PartDesign::Pad", "Pad006")
pad7.Profile = sketch13
pad7.Length = 7

doc.recompute()
